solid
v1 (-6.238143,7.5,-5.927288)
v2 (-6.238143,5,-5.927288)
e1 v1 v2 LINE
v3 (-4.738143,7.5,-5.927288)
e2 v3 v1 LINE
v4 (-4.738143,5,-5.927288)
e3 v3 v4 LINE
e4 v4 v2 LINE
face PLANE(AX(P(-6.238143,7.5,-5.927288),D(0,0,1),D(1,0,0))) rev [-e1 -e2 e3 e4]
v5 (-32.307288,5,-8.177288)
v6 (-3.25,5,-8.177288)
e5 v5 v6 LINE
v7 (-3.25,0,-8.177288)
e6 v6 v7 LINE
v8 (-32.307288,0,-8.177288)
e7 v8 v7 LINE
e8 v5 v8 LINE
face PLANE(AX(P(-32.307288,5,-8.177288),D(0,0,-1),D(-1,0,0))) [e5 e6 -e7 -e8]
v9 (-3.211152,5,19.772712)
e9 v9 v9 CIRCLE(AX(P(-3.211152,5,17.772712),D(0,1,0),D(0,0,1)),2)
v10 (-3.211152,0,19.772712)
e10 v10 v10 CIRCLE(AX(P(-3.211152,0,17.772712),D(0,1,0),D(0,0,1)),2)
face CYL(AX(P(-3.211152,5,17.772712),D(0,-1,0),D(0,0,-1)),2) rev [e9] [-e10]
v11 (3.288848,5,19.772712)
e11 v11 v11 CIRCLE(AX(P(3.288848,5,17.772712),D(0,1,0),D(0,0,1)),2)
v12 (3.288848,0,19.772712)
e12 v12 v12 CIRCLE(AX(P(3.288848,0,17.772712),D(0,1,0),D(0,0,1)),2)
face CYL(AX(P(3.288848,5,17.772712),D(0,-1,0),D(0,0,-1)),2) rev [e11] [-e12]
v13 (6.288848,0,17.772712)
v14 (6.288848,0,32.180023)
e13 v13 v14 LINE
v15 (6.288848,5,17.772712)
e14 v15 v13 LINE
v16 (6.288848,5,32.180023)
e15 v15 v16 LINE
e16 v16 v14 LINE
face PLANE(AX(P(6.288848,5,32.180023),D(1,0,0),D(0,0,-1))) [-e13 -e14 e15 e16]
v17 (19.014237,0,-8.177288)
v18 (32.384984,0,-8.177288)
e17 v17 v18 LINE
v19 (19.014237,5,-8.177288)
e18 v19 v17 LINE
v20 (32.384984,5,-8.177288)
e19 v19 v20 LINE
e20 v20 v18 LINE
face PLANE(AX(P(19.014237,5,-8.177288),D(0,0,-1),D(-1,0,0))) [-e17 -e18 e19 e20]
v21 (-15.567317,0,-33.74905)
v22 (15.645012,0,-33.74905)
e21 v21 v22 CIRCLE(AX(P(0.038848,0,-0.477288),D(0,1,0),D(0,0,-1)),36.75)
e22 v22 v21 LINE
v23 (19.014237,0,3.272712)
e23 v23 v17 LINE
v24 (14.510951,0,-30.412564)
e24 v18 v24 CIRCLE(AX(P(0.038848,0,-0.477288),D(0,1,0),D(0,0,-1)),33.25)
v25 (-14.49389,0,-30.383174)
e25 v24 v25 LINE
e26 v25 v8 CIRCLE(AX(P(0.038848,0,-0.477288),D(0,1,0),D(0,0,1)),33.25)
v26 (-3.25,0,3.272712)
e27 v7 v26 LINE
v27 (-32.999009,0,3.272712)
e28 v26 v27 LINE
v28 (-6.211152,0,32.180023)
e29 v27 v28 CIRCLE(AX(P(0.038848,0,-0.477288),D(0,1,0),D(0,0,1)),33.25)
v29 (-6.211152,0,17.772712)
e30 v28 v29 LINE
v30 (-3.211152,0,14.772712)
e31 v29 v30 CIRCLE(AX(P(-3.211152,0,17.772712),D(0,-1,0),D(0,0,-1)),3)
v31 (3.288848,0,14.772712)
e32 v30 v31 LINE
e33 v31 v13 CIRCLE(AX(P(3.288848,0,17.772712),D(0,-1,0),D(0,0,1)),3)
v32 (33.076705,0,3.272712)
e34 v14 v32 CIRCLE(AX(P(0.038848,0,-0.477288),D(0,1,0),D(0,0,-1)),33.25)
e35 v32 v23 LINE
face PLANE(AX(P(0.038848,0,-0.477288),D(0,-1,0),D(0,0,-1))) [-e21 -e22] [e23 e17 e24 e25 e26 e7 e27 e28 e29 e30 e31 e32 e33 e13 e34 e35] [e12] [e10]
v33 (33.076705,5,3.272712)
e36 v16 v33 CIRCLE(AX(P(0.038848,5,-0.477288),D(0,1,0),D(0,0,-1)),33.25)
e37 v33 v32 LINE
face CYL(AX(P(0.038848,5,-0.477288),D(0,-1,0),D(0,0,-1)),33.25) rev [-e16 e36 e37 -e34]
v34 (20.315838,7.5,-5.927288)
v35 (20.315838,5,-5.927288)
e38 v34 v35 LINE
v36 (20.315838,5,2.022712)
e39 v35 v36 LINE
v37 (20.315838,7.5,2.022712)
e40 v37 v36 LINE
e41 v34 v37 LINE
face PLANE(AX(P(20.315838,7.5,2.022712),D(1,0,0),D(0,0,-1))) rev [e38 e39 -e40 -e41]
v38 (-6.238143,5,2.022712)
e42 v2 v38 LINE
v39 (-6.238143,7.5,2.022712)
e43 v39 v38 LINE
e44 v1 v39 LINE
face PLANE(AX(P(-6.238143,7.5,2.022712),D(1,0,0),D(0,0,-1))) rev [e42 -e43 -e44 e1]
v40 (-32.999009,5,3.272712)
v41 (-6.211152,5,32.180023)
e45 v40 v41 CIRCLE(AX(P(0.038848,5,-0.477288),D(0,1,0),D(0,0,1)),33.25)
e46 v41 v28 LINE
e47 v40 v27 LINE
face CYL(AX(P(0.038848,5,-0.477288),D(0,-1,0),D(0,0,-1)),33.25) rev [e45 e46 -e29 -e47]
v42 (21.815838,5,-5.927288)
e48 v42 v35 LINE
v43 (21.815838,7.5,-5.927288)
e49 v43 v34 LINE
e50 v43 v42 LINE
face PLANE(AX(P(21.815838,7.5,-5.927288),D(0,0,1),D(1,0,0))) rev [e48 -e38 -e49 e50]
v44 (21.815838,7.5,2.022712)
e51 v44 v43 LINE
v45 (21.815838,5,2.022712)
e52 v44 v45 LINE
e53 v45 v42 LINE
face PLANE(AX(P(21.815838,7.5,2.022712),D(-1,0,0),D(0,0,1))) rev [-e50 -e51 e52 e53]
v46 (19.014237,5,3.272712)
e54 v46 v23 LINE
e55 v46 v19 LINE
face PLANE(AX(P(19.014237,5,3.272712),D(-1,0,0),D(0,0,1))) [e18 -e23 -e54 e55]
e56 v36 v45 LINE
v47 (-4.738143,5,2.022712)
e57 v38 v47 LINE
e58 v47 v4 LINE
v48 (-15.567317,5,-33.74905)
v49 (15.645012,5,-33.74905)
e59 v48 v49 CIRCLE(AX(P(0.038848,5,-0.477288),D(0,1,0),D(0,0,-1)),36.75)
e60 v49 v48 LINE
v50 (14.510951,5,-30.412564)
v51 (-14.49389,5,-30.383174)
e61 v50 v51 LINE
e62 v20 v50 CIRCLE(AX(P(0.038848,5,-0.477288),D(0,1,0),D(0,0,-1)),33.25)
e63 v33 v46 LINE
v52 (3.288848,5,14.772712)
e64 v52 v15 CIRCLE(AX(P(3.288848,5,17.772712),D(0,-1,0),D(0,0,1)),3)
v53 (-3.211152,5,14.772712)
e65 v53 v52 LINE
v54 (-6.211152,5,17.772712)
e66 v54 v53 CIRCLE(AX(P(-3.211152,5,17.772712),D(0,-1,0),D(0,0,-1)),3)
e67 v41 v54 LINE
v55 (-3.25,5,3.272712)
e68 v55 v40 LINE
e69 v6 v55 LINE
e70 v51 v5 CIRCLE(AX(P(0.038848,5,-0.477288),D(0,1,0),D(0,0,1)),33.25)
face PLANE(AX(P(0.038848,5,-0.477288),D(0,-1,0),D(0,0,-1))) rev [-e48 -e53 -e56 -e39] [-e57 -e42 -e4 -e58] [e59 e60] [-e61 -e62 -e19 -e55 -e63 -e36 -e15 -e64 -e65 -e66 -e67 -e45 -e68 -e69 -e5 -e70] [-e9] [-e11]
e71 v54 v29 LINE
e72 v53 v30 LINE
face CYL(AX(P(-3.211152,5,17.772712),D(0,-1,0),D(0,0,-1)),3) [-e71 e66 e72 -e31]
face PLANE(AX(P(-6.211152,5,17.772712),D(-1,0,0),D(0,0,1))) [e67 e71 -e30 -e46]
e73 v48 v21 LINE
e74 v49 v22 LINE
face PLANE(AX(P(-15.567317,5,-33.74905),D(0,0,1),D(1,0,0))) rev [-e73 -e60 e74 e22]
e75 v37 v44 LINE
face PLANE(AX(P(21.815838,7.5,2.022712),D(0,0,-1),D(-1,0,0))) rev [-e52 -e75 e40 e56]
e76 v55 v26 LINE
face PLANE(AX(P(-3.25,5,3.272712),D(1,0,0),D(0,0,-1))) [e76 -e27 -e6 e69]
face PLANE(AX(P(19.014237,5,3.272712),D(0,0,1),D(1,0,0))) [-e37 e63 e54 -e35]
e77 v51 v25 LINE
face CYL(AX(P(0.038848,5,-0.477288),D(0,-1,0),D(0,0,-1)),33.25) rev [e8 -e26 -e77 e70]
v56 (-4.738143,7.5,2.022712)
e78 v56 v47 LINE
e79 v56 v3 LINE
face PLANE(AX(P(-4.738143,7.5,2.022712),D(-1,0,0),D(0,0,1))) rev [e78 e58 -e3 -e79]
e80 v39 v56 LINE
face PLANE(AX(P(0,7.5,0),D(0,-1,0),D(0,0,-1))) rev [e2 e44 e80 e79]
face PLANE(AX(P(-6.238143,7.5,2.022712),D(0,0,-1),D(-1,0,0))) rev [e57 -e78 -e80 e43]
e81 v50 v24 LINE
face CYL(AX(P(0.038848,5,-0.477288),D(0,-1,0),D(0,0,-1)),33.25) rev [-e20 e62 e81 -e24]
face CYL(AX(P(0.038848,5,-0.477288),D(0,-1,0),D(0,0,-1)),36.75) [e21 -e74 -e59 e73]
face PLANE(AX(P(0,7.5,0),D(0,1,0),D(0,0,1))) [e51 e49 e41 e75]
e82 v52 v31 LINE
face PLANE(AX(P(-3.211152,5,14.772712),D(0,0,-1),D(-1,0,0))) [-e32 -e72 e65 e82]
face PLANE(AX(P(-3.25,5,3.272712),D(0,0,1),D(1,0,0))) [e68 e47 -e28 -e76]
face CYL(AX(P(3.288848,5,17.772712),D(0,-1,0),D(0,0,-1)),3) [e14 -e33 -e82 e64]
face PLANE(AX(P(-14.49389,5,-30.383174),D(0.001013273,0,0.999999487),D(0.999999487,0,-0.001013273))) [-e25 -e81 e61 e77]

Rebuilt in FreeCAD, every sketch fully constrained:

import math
import FreeCAD as App
import Part
import Sketcher

doc = App.newDocument("Part")
body = doc.addObject("PartDesign::Body", "Body")

# Sketch on XZ plane
sketch1 = doc.addObject("Sketcher::SketchObject", "Sketch")
body.addObject(sketch1)
sketch1.AttachmentSupport = (doc.XZ_Plane, [""])
sketch1.MapMode = "FlatFace"
sketch1.addGeometry(Part.LineSegment(App.Vector(15.6, -33.7, 0), App.Vector(-15.6, -33.7, 0)), False)
sketch1.addGeometry(Part.ArcOfCircle(Part.Circle(App.Vector(0, -0.5, 0), App.Vector(0, 0, 1), 36.8), math.radians(-65), math.radians(245)), False)
sketch1.addGeometry(Part.Circle(App.Vector(3.3, 17.8, 0), App.Vector(0, 0, 1), 2), False)
sketch1.addGeometry(Part.Circle(App.Vector(-3.2, 17.8, 0), App.Vector(0, 0, 1), 2), False)
sketch1.addGeometry(Part.LineSegment(App.Vector(-14.5, -30.4, 0), App.Vector(14.5, -30.4, 0)), False)
sketch1.addGeometry(Part.ArcOfCircle(Part.Circle(App.Vector(0, -0.5, 0), App.Vector(0, 0, 1), 33.3), math.radians(-64), math.radians(-13)), False)
sketch1.addGeometry(Part.LineSegment(App.Vector(32.4, -8.2, 0), App.Vector(19, -8.2, 0)), False)
sketch1.addGeometry(Part.LineSegment(App.Vector(19, -8.2, 0), App.Vector(19, 3.3, 0)), False)
sketch1.addGeometry(Part.LineSegment(App.Vector(19, 3.3, 0), App.Vector(33.1, 3.3, 0)), False)
sketch1.addGeometry(Part.ArcOfCircle(Part.Circle(App.Vector(0, -0.5, 0), App.Vector(0, 0, 1), 33.3), math.radians(6), math.radians(79)), False)
sketch1.addGeometry(Part.LineSegment(App.Vector(6.3, 32.2, 0), App.Vector(6.3, 17.8, 0)), False)
sketch1.addGeometry(Part.ArcOfCircle(Part.Circle(App.Vector(3.3, 17.8, 0), App.Vector(0, 0, 1), 3), math.radians(-90), math.radians(0)), False)
sketch1.addGeometry(Part.LineSegment(App.Vector(3.3, 14.8, 0), App.Vector(-3.2, 14.8, 0)), False)
sketch1.addGeometry(Part.ArcOfCircle(Part.Circle(App.Vector(-3.2, 17.8, 0), App.Vector(0, 0, 1), 3), math.radians(180), math.radians(270)), False)
sketch1.addGeometry(Part.LineSegment(App.Vector(-6.2, 17.8, 0), App.Vector(-6.2, 32.2, 0)), False)
sketch1.addGeometry(Part.ArcOfCircle(Part.Circle(App.Vector(0, -0.5, 0), App.Vector(0, 0, 1), 33.2), math.radians(101), math.radians(174)), False)
sketch1.addGeometry(Part.LineSegment(App.Vector(-33, 3.3, 0), App.Vector(-3.2, 3.3, 0)), False)
sketch1.addGeometry(Part.LineSegment(App.Vector(-3.2, 3.3, 0), App.Vector(-3.2, -8.2, 0)), False)
sketch1.addGeometry(Part.LineSegment(App.Vector(-3.2, -8.2, 0), App.Vector(-32.3, -8.2, 0)), False)
sketch1.addGeometry(Part.ArcOfCircle(Part.Circle(App.Vector(0, -0.5, 0), App.Vector(0, 0, 1), 33.3), math.radians(-167), math.radians(-116)), False)
sketch1.addConstraint(Sketcher.Constraint("Coincident", 0, 1, 1, 1))
sketch1.addConstraint(Sketcher.Constraint("Coincident", 1, 2, 0, 2))
sketch1.addConstraint(Sketcher.Constraint("Coincident", 4, 2, 5, 1))
sketch1.addConstraint(Sketcher.Constraint("Coincident", 5, 2, 6, 1))
sketch1.addConstraint(Sketcher.Constraint("Coincident", 6, 2, 7, 1))
sketch1.addConstraint(Sketcher.Constraint("Coincident", 7, 2, 8, 1))
sketch1.addConstraint(Sketcher.Constraint("Coincident", 8, 2, 9, 1))
sketch1.addConstraint(Sketcher.Constraint("Coincident", 9, 2, 10, 1))
sketch1.addConstraint(Sketcher.Constraint("Tangent", 10, 2, 11, 2))
sketch1.addConstraint(Sketcher.Constraint("Tangent", 11, 1, 12, 1))
sketch1.addConstraint(Sketcher.Constraint("Tangent", 12, 2, 13, 2))
sketch1.addConstraint(Sketcher.Constraint("Tangent", 13, 1, 14, 1))
sketch1.addConstraint(Sketcher.Constraint("Coincident", 14, 2, 15, 1))
sketch1.addConstraint(Sketcher.Constraint("Coincident", 15, 2, 16, 1))
sketch1.addConstraint(Sketcher.Constraint("Coincident", 16, 2, 17, 1))
sketch1.addConstraint(Sketcher.Constraint("Coincident", 17, 2, 18, 1))
sketch1.addConstraint(Sketcher.Constraint("Coincident", 18, 2, 19, 1))
sketch1.addConstraint(Sketcher.Constraint("Coincident", 19, 2, 4, 1))
sketch1.addConstraint(Sketcher.Constraint("Horizontal", 0))
sketch1.addConstraint(Sketcher.Constraint("Horizontal", 6))
sketch1.addConstraint(Sketcher.Constraint("Vertical", 7))
sketch1.addConstraint(Sketcher.Constraint("Horizontal", 8))
sketch1.addConstraint(Sketcher.Constraint("Vertical", 10))
sketch1.addConstraint(Sketcher.Constraint("Horizontal", 12))
sketch1.addConstraint(Sketcher.Constraint("Vertical", 14))
sketch1.addConstraint(Sketcher.Constraint("Horizontal", 16))
sketch1.addConstraint(Sketcher.Constraint("Vertical", 17))
sketch1.addConstraint(Sketcher.Constraint("Horizontal", 18))
sketch1.addConstraint(Sketcher.Constraint("Coincident", 5, 3, 1, 3))
sketch1.addConstraint(Sketcher.Constraint("Coincident", 9, 3, 1, 3))
sketch1.addConstraint(Sketcher.Constraint("Coincident", 11, 3, 2, 3))
sketch1.addConstraint(Sketcher.Constraint("Coincident", 13, 3, 3, 3))
sketch1.addConstraint(Sketcher.Constraint("Coincident", 15, 3, 1, 3))
sketch1.addConstraint(Sketcher.Constraint("Coincident", 19, 3, 1, 3))
sketch1.addConstraint(Sketcher.Constraint("Equal", 2, 3))
sketch1.addConstraint(Sketcher.Constraint("Equal", 5, 9))
sketch1.addConstraint(Sketcher.Constraint("Equal", 11, 13))
sketch1.addConstraint(Sketcher.Constraint("Equal", 9, 15))
sketch1.addConstraint(Sketcher.Constraint("Equal", 15, 19))
sketch1.addConstraint(Sketcher.Constraint("Horizontal", 9, 2, 14, 2))
sketch1.addConstraint(Sketcher.Constraint("Horizontal", 8, 2, 15, 2))
sketch1.addConstraint(Sketcher.Constraint("Horizontal", 6, 2, 17, 2))
sketch1.addConstraint(Sketcher.Constraint("Diameter", 2, 4.0))
sketch1.addConstraint(Sketcher.Constraint("Radius", 11, 3.0))
sketch1.addConstraint(Sketcher.Constraint("Radius", 1, 36.75))
sketch1.addConstraint(Sketcher.Constraint("Radius", 5, 33.25))
sketch1.addConstraint(Sketcher.Constraint("DistanceX", 12, 2, 12, 1, 6.5))
sketch1.addConstraint(Sketcher.Constraint("DistanceY", 7, 1, 7, 2, 11.45))
sketch1.addConstraint(Sketcher.Constraint("DistanceY", 5, 2, 19, 3, 7.7))
sketch1.addConstraint(Sketcher.Constraint("DistanceY", 8, 2, 11, 3, 14.5))
sketch1.addConstraint(Sketcher.Constraint("DistanceX", 16, 2, -1, 1, 3.25))
sketch1.addConstraint(Sketcher.Constraint("DistanceX", 0, 2, 0, 1, 31.212329))
sketch1.addConstraint(Sketcher.Constraint("DistanceX", 16, 1, 16, 2, 29.749009))
sketch1.addConstraint(Sketcher.Constraint("DistanceX", 6, 2, 6, 1, 13.370747))
sketch1.addConstraint(Sketcher.Constraint("DistanceY", 1, 3, -1, 1, 0.477288))
sketch1.addConstraint(Sketcher.Constraint("DistanceX", -1, 1, 4, 2, 14.510951))
sketch1.addConstraint(Sketcher.Constraint("DistanceX", 19, 2, -1, 1, 14.49389))
pad1 = doc.addObject("PartDesign::Pad", "Pad")
body.addObject(pad1)
pad1.Profile = sketch1
pad1.Length = 5
pad1.Reversed = True

# Sketch on XZ plane
sketch2 = doc.addObject("Sketcher::SketchObject", "Sketch001")
body.addObject(sketch2)
sketch2.AttachmentSupport = (doc.XZ_Plane, [""])
sketch2.MapMode = "FlatFace"
sketch2.AttachmentOffset = App.Placement(App.Vector(0, 0, -5), App.Rotation())
sketch2.addGeometry(Part.LineSegment(App.Vector(20.3, -5.9, 0), App.Vector(20.3, 2, 0)), False)
sketch2.addGeometry(Part.LineSegment(App.Vector(20.3, 2, 0), App.Vector(21.8, 2, 0)), False)
sketch2.addGeometry(Part.LineSegment(App.Vector(21.8, 2, 0), App.Vector(21.8, -5.9, 0)), False)
sketch2.addGeometry(Part.LineSegment(App.Vector(21.8, -5.9, 0), App.Vector(20.3, -5.9, 0)), False)
sketch2.addGeometry(Part.LineSegment(App.Vector(-6.2, -5.9, 0), App.Vector(-6.2, 2, 0)), False)
sketch2.addGeometry(Part.LineSegment(App.Vector(-6.2, 2, 0), App.Vector(-4.7, 2, 0)), False)
sketch2.addGeometry(Part.LineSegment(App.Vector(-4.7, 2, 0), App.Vector(-4.7, -5.9, 0)), False)
sketch2.addGeometry(Part.LineSegment(App.Vector(-4.7, -5.9, 0), App.Vector(-6.2, -5.9, 0)), False)
sketch2.addConstraint(Sketcher.Constraint("Coincident", 0, 2, 1, 1))
sketch2.addConstraint(Sketcher.Constraint("Coincident", 1, 2, 2, 1))
sketch2.addConstraint(Sketcher.Constraint("Coincident", 2, 2, 3, 1))
sketch2.addConstraint(Sketcher.Constraint("Coincident", 3, 2, 0, 1))
sketch2.addConstraint(Sketcher.Constraint("Coincident", 4, 2, 5, 1))
sketch2.addConstraint(Sketcher.Constraint("Coincident", 5, 2, 6, 1))
sketch2.addConstraint(Sketcher.Constraint("Coincident", 6, 2, 7, 1))
sketch2.addConstraint(Sketcher.Constraint("Coincident", 7, 2, 4, 1))
sketch2.addConstraint(Sketcher.Constraint("Vertical", 0))
sketch2.addConstraint(Sketcher.Constraint("Horizontal", 1))
sketch2.addConstraint(Sketcher.Constraint("Vertical", 2))
sketch2.addConstraint(Sketcher.Constraint("Horizontal", 3))
sketch2.addConstraint(Sketcher.Constraint("Vertical", 4))
sketch2.addConstraint(Sketcher.Constraint("Horizontal", 5))
sketch2.addConstraint(Sketcher.Constraint("Vertical", 6))
sketch2.addConstraint(Sketcher.Constraint("Horizontal", 7))
sketch2.addConstraint(Sketcher.Constraint("Horizontal", 1, 2, 4, 2))
sketch2.addConstraint(Sketcher.Constraint("Horizontal", 3, 2, 6, 2))
sketch2.addConstraint(Sketcher.Constraint("Equal", 3, 5))
sketch2.addConstraint(Sketcher.Constraint("DistanceX", 1, 1, 1, 2, 1.5))
sketch2.addConstraint(Sketcher.Constraint("DistanceY", 0, 1, 0, 2, 7.95))
sketch2.addConstraint(Sketcher.Constraint("DistanceX", -1, 1, 0, 2, 20.315838))
sketch2.addConstraint(Sketcher.Constraint("DistanceY", -1, 1, 0, 2, 2.022712))
sketch2.addConstraint(Sketcher.Constraint("DistanceX", 4, 2, 0, 2, 26.553981))
pad2 = doc.addObject("PartDesign::Pad", "Pad001")
body.addObject(pad2)
pad2.Profile = sketch2
pad2.Length = 2.5
pad2.Reversed = True

doc.recompute()
